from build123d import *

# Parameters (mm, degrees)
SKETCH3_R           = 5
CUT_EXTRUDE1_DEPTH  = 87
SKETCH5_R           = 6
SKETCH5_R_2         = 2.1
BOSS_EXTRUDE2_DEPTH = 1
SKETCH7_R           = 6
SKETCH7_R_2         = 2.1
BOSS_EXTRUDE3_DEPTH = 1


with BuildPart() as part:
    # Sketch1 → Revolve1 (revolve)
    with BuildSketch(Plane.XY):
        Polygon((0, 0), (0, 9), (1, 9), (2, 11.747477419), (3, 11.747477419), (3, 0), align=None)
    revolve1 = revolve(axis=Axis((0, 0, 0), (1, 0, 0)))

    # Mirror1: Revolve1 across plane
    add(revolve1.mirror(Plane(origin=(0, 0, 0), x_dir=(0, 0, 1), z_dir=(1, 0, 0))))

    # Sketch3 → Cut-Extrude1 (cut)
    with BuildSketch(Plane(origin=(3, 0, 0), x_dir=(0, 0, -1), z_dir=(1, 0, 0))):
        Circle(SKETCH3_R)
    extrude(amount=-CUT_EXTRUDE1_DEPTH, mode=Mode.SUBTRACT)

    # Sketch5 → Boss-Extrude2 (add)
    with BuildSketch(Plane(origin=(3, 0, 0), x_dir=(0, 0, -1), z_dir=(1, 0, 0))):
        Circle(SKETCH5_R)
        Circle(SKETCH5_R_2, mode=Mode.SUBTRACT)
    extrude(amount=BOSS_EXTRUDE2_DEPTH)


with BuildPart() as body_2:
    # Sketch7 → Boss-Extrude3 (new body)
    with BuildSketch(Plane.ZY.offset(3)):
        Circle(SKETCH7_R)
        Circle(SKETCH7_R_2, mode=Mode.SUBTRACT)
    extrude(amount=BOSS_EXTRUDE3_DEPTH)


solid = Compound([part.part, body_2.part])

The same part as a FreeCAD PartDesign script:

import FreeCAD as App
import Part
import Sketcher

V = App.Vector
Q = App.Units.Quantity


def add_polygon(sketch, points):
    """Adds a closed chain of lines whose ends are joined by coincident constraints."""
    first, n = sketch.GeometryCount, len(points)
    for a, b in zip(points, points[1:] + points[:1]):
        sketch.addGeometry(Part.LineSegment(App.Vector(*a, 0), App.Vector(*b, 0)), False)
    for i in range(n):
        sketch.addConstraint(Sketcher.Constraint("Coincident", first + i, 2, first + (i + 1) % n, 1))

doc = App.newDocument("Part")
body = doc.addObject("PartDesign::Body", "Body")

# Sketch on XY plane
sketch1 = body.newObject("Sketcher::SketchObject", "Sketch")
sketch1.AttachmentSupport = (doc.getObject("XY_Plane"), [""])
sketch1.MapMode = "FlatFace"
add_polygon(sketch1, [(0, 9), (0, 0), (3, 0), (3, 11.747477), (2, 11.747477), (1, 9)])  # lines 0-5
sketch1.addConstraint(Sketcher.Constraint("Vertical", 0))
sketch1.addConstraint(Sketcher.Constraint("Horizontal", 1))
sketch1.addConstraint(Sketcher.Constraint("Vertical", 2))
sketch1.addConstraint(Sketcher.Constraint("Horizontal", 3))
sketch1.addConstraint(Sketcher.Constraint("Horizontal", 5))
sketch1.addConstraint(Sketcher.Constraint("Coincident", 0, 2, -1, 1))
sketch1.addConstraint(Sketcher.Constraint("Equal", 3, 5))
sketch1.addConstraint(Sketcher.Constraint("DistanceX", 1, 1, 1, 2, 3.0))
sketch1.addConstraint(Sketcher.Constraint("DistanceX", 3, 2, 3, 1, 1.0))
sketch1.addConstraint(Sketcher.Constraint("DistanceY", 0, 2, 0, 1, 9.0))
sketch1.addConstraint(Sketcher.Constraint("Angle", 4, Q("-110 deg")))
revolution = body.newObject("PartDesign::Revolution", "Revolution")
revolution.Profile = sketch1
revolution.ReferenceAxis = (sketch1, ["H_Axis"])
revolution.Angle = 360
doc.recompute()

mirrored = body.newObject("PartDesign::Mirrored", "Mirrored")
mirrored.Originals = [revolution]
mirrored.MirrorPlane = (doc.getObject("YZ_Plane"), [""])
body.Tip = mirrored

# Sketch on YZ plane
sketch2 = body.newObject("Sketcher::SketchObject", "Sketch001")
sketch2.AttachmentSupport = (doc.getObject("YZ_Plane"), [""])
sketch2.MapMode = "FlatFace"
sketch2.AttachmentOffset = App.Placement(V(0, 0, 3), App.Rotation())
sketch2.addGeometry(Part.Circle(V(0, 0, 0), V(0, 0, 1), 5), False)
sketch2.addConstraint(Sketcher.Constraint("Coincident", 0, 3, -1, 1))
sketch2.addConstraint(Sketcher.Constraint("Diameter", 0, 10.0))
pocket1 = body.newObject("PartDesign::Pocket", "Pocket")
pocket1.Profile = sketch2
pocket1.Length = 87

# Sketch on YZ plane
sketch3 = body.newObject("Sketcher::SketchObject", "Sketch002")
sketch3.AttachmentSupport = (doc.getObject("YZ_Plane"), [""])
sketch3.MapMode = "FlatFace"
sketch3.AttachmentOffset = App.Placement(V(0, 0, 3), App.Rotation())
sketch3.addGeometry(Part.Circle(V(0, 0, 0), V(0, 0, 1), 6), False)
sketch3.addGeometry(Part.Circle(V(0, 0, 0), V(0, 0, 1), 2.1), False)
sketch3.addConstraint(Sketcher.Constraint("Coincident", 0, 3, -1, 1))
sketch3.addConstraint(Sketcher.Constraint("Coincident", 1, 3, -1, 1))
sketch3.addConstraint(Sketcher.Constraint("Diameter", 0, 12.0))
sketch3.addConstraint(Sketcher.Constraint("Diameter", 1, 4.2))
pad1 = body.newObject("PartDesign::Pad", "Pad")
pad1.Profile = sketch3
pad1.Length = 1
body2 = doc.addObject("PartDesign::Body", "Body001")

# Sketch on YZ plane
sketch4 = body2.newObject("Sketcher::SketchObject", "Sketch003")
sketch4.AttachmentSupport = (doc.getObject("YZ_Plane001"), [""])
sketch4.MapMode = "FlatFace"
sketch4.AttachmentOffset = App.Placement(V(0, 0, -3), App.Rotation())
sketch4.addGeometry(Part.Circle(V(0, 0, 0), V(0, 0, 1), 6), False)
sketch4.addGeometry(Part.Circle(V(0, 0, 0), V(0, 0, 1), 2.1), False)
sketch4.addConstraint(Sketcher.Constraint("Coincident", 0, 3, -1, 1))
sketch4.addConstraint(Sketcher.Constraint("Coincident", 1, 3, -1, 1))
sketch4.addConstraint(Sketcher.Constraint("Diameter", 0, 12.0))
sketch4.addConstraint(Sketcher.Constraint("Diameter", 1, 4.2))
pad2 = body2.newObject("PartDesign::Pad", "Pad001")
pad2.Profile = sketch4
pad2.Length = 1
pad2.Reversed = True

doc.recompute()
